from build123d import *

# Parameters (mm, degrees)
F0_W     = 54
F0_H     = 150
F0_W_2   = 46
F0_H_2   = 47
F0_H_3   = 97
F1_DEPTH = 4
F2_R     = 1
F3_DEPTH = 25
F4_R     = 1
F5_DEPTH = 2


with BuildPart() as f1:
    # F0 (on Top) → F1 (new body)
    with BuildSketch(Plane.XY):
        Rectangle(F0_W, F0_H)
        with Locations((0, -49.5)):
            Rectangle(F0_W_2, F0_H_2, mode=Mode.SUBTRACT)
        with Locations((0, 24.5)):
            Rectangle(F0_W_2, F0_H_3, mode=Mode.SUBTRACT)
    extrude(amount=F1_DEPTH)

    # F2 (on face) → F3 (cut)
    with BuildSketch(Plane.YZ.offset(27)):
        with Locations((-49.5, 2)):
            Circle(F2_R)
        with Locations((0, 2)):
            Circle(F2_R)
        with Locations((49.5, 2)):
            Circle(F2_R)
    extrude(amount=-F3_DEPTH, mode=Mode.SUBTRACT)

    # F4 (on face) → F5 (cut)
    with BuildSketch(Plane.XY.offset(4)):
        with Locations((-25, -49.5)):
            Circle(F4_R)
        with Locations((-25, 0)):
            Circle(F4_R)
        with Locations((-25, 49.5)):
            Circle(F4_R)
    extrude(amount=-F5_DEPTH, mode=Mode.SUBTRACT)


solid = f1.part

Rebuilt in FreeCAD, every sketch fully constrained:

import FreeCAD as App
import Part
import Sketcher

V = App.Vector

doc = App.newDocument("Part")
body = doc.addObject("PartDesign::Body", "Body")

# Sketch on XY plane
sketch1 = body.newObject("Sketcher::SketchObject", "Sketch")
sketch1.AttachmentSupport = (doc.getObject("XY_Plane"), [""])
sketch1.MapMode = "FlatFace"
sketch1.addGeometry(Part.LineSegment(V(-27, 75, 0), V(-27, -75, 0)), False)
sketch1.addGeometry(Part.LineSegment(V(-27, -75, 0), V(27, -75, 0)), False)
sketch1.addGeometry(Part.LineSegment(V(27, -75, 0), V(27, 75, 0)), False)
sketch1.addGeometry(Part.LineSegment(V(27, 75, 0), V(-27, 75, 0)), False)
sketch1.addGeometry(Part.LineSegment(V(23, -73, 0), V(-23, -73, 0)), False)
sketch1.addGeometry(Part.LineSegment(V(-23, -73, 0), V(-23, -26, 0)), False)
sketch1.addGeometry(Part.LineSegment(V(-23, -26, 0), V(23, -26, 0)), False)
sketch1.addGeometry(Part.LineSegment(V(23, -26, 0), V(23, -73, 0)), False)
sketch1.addGeometry(Part.LineSegment(V(23, -24, 0), V(-23, -24, 0)), False)
sketch1.addGeometry(Part.LineSegment(V(-23, -24, 0), V(-23, 73, 0)), False)
sketch1.addGeometry(Part.LineSegment(V(-23, 73, 0), V(23, 73, 0)), False)
sketch1.addGeometry(Part.LineSegment(V(23, 73, 0), V(23, -24, 0)), False)
sketch1.addConstraint(Sketcher.Constraint("Coincident", 0, 2, 1, 1))
sketch1.addConstraint(Sketcher.Constraint("Coincident", 1, 2, 2, 1))
sketch1.addConstraint(Sketcher.Constraint("Coincident", 2, 2, 3, 1))
sketch1.addConstraint(Sketcher.Constraint("Coincident", 3, 2, 0, 1))
sketch1.addConstraint(Sketcher.Constraint("Coincident", 4, 2, 5, 1))
sketch1.addConstraint(Sketcher.Constraint("Coincident", 5, 2, 6, 1))
sketch1.addConstraint(Sketcher.Constraint("Coincident", 6, 2, 7, 1))
sketch1.addConstraint(Sketcher.Constraint("Coincident", 7, 2, 4, 1))
sketch1.addConstraint(Sketcher.Constraint("Coincident", 8, 2, 9, 1))
sketch1.addConstraint(Sketcher.Constraint("Coincident", 9, 2, 10, 1))
sketch1.addConstraint(Sketcher.Constraint("Coincident", 10, 2, 11, 1))
sketch1.addConstraint(Sketcher.Constraint("Coincident", 11, 2, 8, 1))
sketch1.addConstraint(Sketcher.Constraint("Vertical", 0))
sketch1.addConstraint(Sketcher.Constraint("Horizontal", 1))
sketch1.addConstraint(Sketcher.Constraint("Vertical", 2))
sketch1.addConstraint(Sketcher.Constraint("Horizontal", 3))
sketch1.addConstraint(Sketcher.Constraint("Horizontal", 4))
sketch1.addConstraint(Sketcher.Constraint("Vertical", 5))
sketch1.addConstraint(Sketcher.Constraint("Horizontal", 6))
sketch1.addConstraint(Sketcher.Constraint("Vertical", 7))
sketch1.addConstraint(Sketcher.Constraint("Horizontal", 8))
sketch1.addConstraint(Sketcher.Constraint("Vertical", 9))
sketch1.addConstraint(Sketcher.Constraint("Horizontal", 10))
sketch1.addConstraint(Sketcher.Constraint("Vertical", 11))
sketch1.addConstraint(Sketcher.Constraint("Symmetric", 0, 2, 2, 2, -1, 1))
sketch1.addConstraint(Sketcher.Constraint("Symmetric", 7, 2, 9, 2, -1, 1))
sketch1.addConstraint(Sketcher.Constraint("Vertical", 5, 2, 8, 2))
sketch1.addConstraint(Sketcher.Constraint("Vertical", 7, 2, 10, 2))
sketch1.addConstraint(Sketcher.Constraint("DistanceX", 1, 1, 1, 2, 54.0))
sketch1.addConstraint(Sketcher.Constraint("DistanceX", 4, 2, 4, 1, 46.0))
sketch1.addConstraint(Sketcher.Constraint("DistanceY", 0, 2, 0, 1, 150.0))
sketch1.addConstraint(Sketcher.Constraint("DistanceY", 5, 1, 5, 2, 47.0))
sketch1.addConstraint(Sketcher.Constraint("DistanceY", 9, 1, 9, 2, 97.0))
sketch1.addConstraint(Sketcher.Constraint("DistanceY", 4, 2, -1, 1, 73.0))
pad1 = body.newObject("PartDesign::Pad", "Pad")
pad1.Profile = sketch1
pad1.Length = 4

# Sketch on YZ plane
sketch2 = body.newObject("Sketcher::SketchObject", "Sketch001")
sketch2.AttachmentSupport = (doc.getObject("YZ_Plane"), [""])
sketch2.MapMode = "FlatFace"
sketch2.AttachmentOffset = App.Placement(V(0, 0, 27), App.Rotation())
sketch2.addGeometry(Part.Circle(V(-49.5, 2, 0), V(0, 0, 1), 1), False)
sketch2.addGeometry(Part.Circle(V(0, 2, 0), V(0, 0, 1), 1), False)
sketch2.addGeometry(Part.Circle(V(49.5, 2, 0), V(0, 0, 1), 1), False)
sketch2.addConstraint(Sketcher.Constraint("Equal", 0, 1))
sketch2.addConstraint(Sketcher.Constraint("Equal", 1, 2))
sketch2.addConstraint(Sketcher.Constraint("Symmetric", 0, 3, 2, 3, -2))
sketch2.addConstraint(Sketcher.Constraint("PointOnObject", 1, 3, -2))
sketch2.addConstraint(Sketcher.Constraint("Horizontal", 0, 3, 1, 3))
sketch2.addConstraint(Sketcher.Constraint("Diameter", 0, 2.0))
sketch2.addConstraint(Sketcher.Constraint("DistanceY", -1, 1, 0, 3, 2.0))
sketch2.addConstraint(Sketcher.Constraint("DistanceX", 0, 3, 2, 3, 99.0))
pocket1 = body.newObject("PartDesign::Pocket", "Pocket")
pocket1.Profile = sketch2
pocket1.Length = 25

# Sketch on XY plane
sketch3 = body.newObject("Sketcher::SketchObject", "Sketch002")
sketch3.AttachmentSupport = (doc.getObject("XY_Plane"), [""])
sketch3.MapMode = "FlatFace"
sketch3.AttachmentOffset = App.Placement(V(0, 0, 4), App.Rotation())
sketch3.addGeometry(Part.Circle(V(-25, -49.5, 0), V(0, 0, 1), 1), False)
sketch3.addGeometry(Part.Circle(V(-25, 0, 0), V(0, 0, 1), 1), False)
sketch3.addGeometry(Part.Circle(V(-25, 49.5, 0), V(0, 0, 1), 1), False)
sketch3.addConstraint(Sketcher.Constraint("Equal", 0, 1))
sketch3.addConstraint(Sketcher.Constraint("Equal", 1, 2))
sketch3.addConstraint(Sketcher.Constraint("Symmetric", 0, 3, 2, 3, -1))
sketch3.addConstraint(Sketcher.Constraint("PointOnObject", 1, 3, -1))
sketch3.addConstraint(Sketcher.Constraint("Vertical", 0, 3, 1, 3))
sketch3.addConstraint(Sketcher.Constraint("Diameter", 0, 2.0))
sketch3.addConstraint(Sketcher.Constraint("DistanceX", 0, 3, -1, 1, 25.0))
sketch3.addConstraint(Sketcher.Constraint("DistanceY", 0, 3, 2, 3, 99.0))
pocket2 = body.newObject("PartDesign::Pocket", "Pocket001")
pocket2.Profile = sketch3
pocket2.Length = 2

doc.recompute()
